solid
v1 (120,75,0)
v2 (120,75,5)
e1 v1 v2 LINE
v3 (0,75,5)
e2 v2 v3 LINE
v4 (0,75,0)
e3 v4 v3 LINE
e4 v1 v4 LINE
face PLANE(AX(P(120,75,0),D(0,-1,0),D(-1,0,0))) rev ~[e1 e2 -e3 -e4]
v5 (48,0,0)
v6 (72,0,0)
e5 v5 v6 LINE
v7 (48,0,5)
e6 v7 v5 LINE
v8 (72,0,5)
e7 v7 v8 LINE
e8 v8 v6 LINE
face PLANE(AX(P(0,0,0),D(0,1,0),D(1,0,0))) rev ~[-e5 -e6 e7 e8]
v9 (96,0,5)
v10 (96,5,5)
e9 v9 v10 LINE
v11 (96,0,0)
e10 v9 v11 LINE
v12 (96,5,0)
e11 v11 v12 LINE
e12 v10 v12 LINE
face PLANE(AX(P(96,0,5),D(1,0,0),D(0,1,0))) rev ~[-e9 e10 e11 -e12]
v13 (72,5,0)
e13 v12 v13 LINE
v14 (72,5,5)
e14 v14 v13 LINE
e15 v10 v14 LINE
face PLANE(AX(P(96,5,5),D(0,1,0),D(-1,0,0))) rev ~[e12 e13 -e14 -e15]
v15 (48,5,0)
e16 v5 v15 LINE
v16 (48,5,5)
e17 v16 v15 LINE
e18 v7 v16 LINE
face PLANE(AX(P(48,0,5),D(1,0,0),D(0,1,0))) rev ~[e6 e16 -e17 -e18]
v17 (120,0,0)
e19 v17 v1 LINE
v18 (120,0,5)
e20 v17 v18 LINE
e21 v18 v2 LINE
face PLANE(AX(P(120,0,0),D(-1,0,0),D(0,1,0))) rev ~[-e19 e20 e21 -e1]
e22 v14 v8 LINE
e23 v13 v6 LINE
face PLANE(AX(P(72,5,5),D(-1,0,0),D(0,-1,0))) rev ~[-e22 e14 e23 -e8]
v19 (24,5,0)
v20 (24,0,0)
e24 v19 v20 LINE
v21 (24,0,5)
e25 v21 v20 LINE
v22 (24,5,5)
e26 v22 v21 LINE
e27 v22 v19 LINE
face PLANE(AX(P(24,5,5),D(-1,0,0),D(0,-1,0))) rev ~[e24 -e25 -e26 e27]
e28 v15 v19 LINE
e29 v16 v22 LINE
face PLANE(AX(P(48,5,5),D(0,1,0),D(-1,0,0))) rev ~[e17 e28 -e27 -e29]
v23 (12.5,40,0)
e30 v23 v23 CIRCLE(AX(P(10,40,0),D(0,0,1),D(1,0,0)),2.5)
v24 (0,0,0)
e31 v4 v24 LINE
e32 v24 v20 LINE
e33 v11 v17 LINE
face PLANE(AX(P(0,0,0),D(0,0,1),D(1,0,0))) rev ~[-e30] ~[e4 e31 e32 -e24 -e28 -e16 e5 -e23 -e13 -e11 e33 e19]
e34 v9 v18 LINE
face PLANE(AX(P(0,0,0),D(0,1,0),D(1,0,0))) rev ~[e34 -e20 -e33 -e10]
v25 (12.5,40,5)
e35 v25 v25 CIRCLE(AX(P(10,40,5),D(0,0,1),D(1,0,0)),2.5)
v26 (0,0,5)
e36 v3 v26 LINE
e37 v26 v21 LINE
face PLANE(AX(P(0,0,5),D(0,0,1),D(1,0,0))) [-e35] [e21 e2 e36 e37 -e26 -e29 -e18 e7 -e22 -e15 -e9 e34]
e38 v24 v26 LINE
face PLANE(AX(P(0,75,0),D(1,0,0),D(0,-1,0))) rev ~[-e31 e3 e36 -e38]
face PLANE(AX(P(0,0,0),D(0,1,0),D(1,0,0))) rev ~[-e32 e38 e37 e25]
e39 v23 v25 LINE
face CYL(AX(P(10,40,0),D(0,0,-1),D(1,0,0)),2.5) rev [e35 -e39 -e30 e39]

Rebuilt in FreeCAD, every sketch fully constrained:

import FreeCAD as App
import Part
import Sketcher
from FreeCAD import Vector
Q = App.Units.Quantity


def add_polygon(sketch, points):
    """Adds a closed chain of lines whose ends are joined by coincident constraints."""
    first, n = sketch.GeometryCount, len(points)
    for a, b in zip(points, points[1:] + points[:1]):
        sketch.addGeometry(Part.LineSegment(App.Vector(*a, 0), App.Vector(*b, 0)), False)
    for i in range(n):
        sketch.addConstraint(Sketcher.Constraint("Coincident", first + i, 2, first + (i + 1) % n, 1))

doc = App.newDocument("Part")
body = doc.addObject("PartDesign::Body", "Body")

# Sketch on XY plane
sketch1 = doc.addObject("Sketcher::SketchObject", "Sketch")
body.addObject(sketch1)
sketch1.AttachmentSupport = (doc.XY_Plane, [""])
sketch1.MapMode = "FlatFace"
add_polygon(sketch1, [(0, 75), (0, 0), (120, 0), (120, 75)])  # lines 0-3
sketch1.addGeometry(Part.Circle(Vector(10, 40, 0), Vector(0, 0, 1), 2.5), False)  # 4
sketch1.addConstraint([
    Sketcher.Constraint("Vertical", 0),
    Sketcher.Constraint("Horizontal", 1),
    Sketcher.Constraint("Vertical", 2),
    Sketcher.Constraint("Horizontal", 3),
    Sketcher.Constraint("Coincident", 0, 2, -1, 1),
    Sketcher.Constraint("Diameter", 4, Q("5 mm")),
    Sketcher.Constraint("DistanceX", 1, 1, 1, 2, Q("120 mm")),
    Sketcher.Constraint("DistanceY", 0, 2, 0, 1, Q("75 mm")),
    Sketcher.Constraint("DistanceX", -1, 1, 4, 3, Q("10 mm")),
    Sketcher.Constraint("DistanceY", 4, 3, 2, 2, Q("35 mm")),
])
pad1 = doc.addObject("PartDesign::Pad", "Pad")
body.addObject(pad1)
pad1.Profile = sketch1
pad1.Length = 5

# Sketch on XY plane
sketch2 = doc.addObject("Sketcher::SketchObject", "Sketch001")
body.addObject(sketch2)
sketch2.AttachmentSupport = (doc.XY_Plane, [""])
sketch2.MapMode = "FlatFace"
sketch2.AttachmentOffset = App.Placement(Vector(0, 0, 5), App.Rotation())
add_polygon(sketch2, [(24, 5), (24, 0), (48, 0), (48, 5)])  # lines 0-3
add_polygon(sketch2, [(72, 5), (72, 0), (96, 0), (96, 5)])  # lines 4-7
sketch2.addConstraint([
    Sketcher.Constraint("Vertical", 0),
    Sketcher.Constraint("Horizontal", 1),
    Sketcher.Constraint("Vertical", 2),
    Sketcher.Constraint("Horizontal", 3),
    Sketcher.Constraint("Vertical", 4),
    Sketcher.Constraint("Horizontal", 5),
    Sketcher.Constraint("Vertical", 6),
    Sketcher.Constraint("Horizontal", 7),
    Sketcher.Constraint("PointOnObject", 0, 2, -1),
    Sketcher.Constraint("PointOnObject", 4, 2, -1),
    Sketcher.Constraint("Horizontal", 3, 2, 6, 2),
    Sketcher.Constraint("Equal", 3, 5),
    Sketcher.Constraint("DistanceX", 1, 1, 1, 2, Q("24 mm")),
    Sketcher.Constraint("DistanceY", 0, 2, 0, 1, Q("5 mm")),
    Sketcher.Constraint("DistanceX", -1, 1, 0, 2, Q("24 mm")),
    Sketcher.Constraint("DistanceX", 1, 2, 4, 2, Q("24 mm")),
])
pocket1 = doc.addObject("PartDesign::Pocket", "Pocket")
body.addObject(pocket1)
pocket1.Profile = sketch2
pocket1.Length = 5

doc.recompute()
